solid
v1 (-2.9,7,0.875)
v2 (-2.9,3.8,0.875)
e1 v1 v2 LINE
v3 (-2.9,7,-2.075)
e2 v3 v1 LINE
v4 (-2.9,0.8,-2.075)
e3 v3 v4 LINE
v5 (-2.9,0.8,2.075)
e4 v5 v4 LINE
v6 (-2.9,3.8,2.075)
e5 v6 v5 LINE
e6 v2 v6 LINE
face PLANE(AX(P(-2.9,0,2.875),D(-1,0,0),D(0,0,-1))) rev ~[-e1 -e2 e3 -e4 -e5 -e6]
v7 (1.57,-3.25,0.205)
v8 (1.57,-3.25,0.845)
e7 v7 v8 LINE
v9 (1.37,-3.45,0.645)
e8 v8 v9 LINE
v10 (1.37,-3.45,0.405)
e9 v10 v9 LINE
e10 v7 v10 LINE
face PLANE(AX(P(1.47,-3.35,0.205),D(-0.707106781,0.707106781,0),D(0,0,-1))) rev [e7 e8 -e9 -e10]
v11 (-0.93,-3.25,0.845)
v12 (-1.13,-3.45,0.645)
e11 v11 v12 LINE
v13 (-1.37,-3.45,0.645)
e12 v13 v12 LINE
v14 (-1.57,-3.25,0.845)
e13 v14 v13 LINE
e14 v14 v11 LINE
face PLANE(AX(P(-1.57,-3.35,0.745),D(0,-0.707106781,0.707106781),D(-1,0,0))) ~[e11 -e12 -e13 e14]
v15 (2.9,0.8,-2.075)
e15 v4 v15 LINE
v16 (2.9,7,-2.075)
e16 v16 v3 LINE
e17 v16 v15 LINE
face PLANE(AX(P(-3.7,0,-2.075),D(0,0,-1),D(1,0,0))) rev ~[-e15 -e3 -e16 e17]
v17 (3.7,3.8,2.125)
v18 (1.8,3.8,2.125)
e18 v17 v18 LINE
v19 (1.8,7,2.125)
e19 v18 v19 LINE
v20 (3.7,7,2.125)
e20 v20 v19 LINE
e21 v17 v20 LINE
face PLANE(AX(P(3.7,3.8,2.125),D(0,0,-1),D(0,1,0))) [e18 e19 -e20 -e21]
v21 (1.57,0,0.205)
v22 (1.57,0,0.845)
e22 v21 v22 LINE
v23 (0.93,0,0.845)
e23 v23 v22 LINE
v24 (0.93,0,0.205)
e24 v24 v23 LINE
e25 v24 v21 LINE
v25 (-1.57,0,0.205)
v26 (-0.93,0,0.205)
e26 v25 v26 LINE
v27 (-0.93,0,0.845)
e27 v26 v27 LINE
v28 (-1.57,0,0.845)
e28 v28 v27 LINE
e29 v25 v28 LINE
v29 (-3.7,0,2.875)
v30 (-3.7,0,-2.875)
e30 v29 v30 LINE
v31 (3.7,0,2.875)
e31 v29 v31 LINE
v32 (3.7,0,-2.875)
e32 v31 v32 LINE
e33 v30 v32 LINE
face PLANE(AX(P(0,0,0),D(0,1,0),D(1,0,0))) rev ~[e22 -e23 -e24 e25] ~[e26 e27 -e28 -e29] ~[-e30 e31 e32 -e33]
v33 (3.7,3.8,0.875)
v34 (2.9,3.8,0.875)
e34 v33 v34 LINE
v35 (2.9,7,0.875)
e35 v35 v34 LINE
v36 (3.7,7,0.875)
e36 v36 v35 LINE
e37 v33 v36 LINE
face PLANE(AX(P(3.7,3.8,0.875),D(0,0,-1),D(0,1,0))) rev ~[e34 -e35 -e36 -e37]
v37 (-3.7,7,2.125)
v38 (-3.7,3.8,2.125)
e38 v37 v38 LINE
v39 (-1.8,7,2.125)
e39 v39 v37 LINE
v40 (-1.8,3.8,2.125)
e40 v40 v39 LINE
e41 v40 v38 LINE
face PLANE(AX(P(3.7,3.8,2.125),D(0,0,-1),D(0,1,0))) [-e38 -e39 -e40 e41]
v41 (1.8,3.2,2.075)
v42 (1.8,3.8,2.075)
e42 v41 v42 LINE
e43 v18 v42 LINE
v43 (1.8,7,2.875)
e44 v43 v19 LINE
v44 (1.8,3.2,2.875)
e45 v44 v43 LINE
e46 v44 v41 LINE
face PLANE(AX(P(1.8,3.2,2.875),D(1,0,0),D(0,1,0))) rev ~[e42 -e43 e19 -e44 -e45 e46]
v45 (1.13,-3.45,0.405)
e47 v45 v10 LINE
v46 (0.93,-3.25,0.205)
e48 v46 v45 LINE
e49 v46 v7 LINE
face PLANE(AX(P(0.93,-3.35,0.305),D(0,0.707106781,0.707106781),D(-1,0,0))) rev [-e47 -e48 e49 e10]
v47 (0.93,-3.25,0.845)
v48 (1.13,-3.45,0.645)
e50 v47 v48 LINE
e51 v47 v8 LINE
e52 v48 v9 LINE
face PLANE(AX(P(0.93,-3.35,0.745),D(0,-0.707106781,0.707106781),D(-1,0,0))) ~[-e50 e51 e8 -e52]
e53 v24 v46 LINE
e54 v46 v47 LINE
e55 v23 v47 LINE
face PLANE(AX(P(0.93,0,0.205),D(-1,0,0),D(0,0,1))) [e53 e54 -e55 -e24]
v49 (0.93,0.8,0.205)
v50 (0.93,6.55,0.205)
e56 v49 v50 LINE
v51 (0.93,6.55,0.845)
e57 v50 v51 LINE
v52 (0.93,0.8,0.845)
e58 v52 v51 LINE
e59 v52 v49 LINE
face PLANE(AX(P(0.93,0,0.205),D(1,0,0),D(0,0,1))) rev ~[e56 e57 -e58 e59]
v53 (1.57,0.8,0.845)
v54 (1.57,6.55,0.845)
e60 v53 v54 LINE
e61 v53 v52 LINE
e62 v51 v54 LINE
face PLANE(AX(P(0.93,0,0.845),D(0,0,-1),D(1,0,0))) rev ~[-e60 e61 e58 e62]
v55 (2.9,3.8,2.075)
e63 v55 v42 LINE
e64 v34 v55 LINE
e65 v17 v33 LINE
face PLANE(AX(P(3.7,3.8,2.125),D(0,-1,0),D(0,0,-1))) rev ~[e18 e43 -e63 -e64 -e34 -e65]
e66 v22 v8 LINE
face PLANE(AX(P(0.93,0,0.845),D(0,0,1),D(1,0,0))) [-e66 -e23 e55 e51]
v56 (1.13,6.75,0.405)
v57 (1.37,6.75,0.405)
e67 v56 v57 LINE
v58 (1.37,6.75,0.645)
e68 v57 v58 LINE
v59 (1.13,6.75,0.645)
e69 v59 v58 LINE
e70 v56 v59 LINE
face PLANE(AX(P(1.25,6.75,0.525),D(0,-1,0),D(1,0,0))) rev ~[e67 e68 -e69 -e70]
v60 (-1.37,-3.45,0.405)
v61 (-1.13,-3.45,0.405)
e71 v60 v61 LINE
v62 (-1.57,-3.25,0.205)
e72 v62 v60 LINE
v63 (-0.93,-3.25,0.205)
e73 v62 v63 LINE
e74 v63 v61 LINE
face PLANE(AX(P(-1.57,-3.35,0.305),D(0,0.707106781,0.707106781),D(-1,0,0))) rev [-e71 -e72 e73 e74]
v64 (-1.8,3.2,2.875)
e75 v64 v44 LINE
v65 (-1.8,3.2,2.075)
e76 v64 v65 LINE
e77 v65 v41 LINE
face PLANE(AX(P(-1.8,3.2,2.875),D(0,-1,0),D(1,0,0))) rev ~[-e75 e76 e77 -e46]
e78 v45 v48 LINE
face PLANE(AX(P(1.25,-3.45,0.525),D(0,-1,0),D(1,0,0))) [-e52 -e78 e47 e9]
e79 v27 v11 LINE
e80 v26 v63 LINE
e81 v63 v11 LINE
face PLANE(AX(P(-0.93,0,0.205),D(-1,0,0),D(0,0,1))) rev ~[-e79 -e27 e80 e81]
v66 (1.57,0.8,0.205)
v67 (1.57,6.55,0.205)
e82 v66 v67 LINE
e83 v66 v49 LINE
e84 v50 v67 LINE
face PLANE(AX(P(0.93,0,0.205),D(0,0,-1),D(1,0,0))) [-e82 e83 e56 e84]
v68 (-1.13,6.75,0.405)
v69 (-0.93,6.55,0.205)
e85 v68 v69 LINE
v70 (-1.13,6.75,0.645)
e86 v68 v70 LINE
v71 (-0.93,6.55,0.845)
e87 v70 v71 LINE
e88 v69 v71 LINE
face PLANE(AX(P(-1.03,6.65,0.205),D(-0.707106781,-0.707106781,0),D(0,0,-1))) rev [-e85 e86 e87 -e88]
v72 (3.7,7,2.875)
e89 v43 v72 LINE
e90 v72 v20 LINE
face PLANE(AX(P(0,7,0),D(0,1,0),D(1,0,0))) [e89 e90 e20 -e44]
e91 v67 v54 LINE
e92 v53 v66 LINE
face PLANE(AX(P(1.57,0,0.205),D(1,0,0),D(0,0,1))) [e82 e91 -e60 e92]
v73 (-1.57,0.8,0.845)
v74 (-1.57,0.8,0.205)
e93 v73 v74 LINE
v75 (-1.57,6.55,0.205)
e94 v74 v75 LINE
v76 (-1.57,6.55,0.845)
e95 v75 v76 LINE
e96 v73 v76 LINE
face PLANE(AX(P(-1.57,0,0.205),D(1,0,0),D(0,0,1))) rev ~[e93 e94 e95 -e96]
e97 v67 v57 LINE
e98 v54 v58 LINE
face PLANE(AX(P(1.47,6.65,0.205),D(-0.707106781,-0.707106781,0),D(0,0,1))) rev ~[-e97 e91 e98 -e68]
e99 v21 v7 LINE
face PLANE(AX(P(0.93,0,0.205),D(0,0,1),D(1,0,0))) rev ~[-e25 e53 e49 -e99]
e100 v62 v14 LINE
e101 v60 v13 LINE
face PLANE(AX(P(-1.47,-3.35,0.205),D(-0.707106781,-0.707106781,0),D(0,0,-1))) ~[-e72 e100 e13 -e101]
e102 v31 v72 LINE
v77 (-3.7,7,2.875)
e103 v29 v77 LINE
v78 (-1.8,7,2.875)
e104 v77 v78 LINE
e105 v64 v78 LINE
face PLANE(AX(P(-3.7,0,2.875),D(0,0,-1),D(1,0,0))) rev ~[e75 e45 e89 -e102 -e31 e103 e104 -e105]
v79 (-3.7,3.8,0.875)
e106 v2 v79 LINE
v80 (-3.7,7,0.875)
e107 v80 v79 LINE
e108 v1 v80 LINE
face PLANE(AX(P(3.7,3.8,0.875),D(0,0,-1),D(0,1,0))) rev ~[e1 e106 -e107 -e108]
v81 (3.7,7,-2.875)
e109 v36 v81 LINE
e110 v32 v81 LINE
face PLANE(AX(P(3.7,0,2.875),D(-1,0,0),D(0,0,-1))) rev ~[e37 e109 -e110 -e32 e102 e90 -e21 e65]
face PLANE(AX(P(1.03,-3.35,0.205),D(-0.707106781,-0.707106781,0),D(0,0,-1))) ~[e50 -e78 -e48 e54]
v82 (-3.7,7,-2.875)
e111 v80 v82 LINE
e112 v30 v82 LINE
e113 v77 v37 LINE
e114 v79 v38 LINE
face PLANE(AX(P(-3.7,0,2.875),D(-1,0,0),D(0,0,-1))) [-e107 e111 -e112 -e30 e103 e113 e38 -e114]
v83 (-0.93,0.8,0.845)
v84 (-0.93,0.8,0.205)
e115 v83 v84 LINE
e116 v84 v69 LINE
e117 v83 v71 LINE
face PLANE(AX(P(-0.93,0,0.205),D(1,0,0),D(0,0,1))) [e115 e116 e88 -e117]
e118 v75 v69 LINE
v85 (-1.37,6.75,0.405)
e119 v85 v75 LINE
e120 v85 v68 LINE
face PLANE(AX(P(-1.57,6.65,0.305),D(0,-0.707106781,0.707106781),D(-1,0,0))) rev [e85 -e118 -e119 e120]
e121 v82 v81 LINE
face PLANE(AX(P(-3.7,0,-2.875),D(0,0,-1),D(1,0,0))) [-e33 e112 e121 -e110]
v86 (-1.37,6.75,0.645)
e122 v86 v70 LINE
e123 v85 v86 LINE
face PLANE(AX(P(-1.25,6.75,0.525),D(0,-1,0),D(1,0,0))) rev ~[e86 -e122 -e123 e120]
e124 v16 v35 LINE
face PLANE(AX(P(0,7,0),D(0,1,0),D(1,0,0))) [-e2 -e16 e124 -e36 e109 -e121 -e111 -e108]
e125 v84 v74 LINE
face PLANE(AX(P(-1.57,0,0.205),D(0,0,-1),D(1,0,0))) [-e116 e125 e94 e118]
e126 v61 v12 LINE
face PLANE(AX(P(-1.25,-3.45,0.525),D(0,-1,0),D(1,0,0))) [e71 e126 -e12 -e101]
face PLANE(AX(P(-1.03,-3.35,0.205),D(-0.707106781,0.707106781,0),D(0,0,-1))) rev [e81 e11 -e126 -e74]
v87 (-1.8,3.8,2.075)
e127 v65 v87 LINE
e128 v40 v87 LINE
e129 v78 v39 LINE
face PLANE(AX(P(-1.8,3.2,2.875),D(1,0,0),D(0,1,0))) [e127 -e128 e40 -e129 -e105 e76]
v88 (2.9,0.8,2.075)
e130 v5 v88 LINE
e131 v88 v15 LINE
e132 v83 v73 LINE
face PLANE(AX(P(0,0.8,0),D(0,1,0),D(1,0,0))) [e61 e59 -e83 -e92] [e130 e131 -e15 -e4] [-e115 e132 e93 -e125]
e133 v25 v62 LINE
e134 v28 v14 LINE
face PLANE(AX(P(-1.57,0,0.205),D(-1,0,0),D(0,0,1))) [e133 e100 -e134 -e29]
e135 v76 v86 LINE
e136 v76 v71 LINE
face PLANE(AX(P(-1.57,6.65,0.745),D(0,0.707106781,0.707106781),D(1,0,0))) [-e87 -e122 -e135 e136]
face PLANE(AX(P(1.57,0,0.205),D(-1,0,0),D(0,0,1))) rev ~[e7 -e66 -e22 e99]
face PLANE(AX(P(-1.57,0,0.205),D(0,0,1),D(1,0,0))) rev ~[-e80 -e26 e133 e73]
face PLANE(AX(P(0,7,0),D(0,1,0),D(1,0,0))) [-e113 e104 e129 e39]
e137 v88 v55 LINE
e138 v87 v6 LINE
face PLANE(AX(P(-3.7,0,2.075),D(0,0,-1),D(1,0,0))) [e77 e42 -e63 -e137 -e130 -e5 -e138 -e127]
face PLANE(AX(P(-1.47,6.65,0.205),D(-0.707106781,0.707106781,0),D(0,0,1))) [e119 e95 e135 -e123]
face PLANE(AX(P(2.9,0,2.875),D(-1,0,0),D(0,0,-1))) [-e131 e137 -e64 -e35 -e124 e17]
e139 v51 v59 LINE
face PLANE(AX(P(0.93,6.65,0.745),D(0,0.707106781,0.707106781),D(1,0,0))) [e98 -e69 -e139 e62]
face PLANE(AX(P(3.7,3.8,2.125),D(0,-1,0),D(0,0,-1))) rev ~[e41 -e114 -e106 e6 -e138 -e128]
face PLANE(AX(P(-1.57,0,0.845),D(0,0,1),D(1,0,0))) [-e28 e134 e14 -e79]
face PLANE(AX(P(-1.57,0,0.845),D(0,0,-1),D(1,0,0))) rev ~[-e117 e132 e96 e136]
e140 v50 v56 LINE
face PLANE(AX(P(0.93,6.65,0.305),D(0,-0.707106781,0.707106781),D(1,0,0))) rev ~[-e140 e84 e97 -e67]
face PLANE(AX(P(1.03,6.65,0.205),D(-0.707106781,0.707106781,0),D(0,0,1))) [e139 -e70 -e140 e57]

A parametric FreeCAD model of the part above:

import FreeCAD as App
import Part
import Sketcher
Q = App.Units.Quantity


def edges_at(feature, points):
    """Names of the edges that pass closest to the given points."""
    edges = feature.Shape.Edges
    near = lambda p: min(range(len(edges)), key=lambda i: edges[i].distToShape(Part.Vertex(*p))[0])
    return sorted({f"Edge{near(p) + 1}" for p in points})


def faces_at(feature, points):
    """Names of the faces that lie closest to the given points."""
    faces = feature.Shape.Faces
    near = lambda p: min(range(len(faces)), key=lambda i: faces[i].distToShape(Part.Vertex(*p))[0])
    return sorted({f"Face{near(p) + 1}" for p in points})

doc = App.newDocument("Part")
body = doc.addObject("PartDesign::Body", "Body")

sketch1 = body.newObject("Sketcher::SketchObject", "Sketch")
sketch1.AttachmentSupport = (doc.getObject("XZ_Plane"), [""])
sketch1.MapMode = "FlatFace"
sketch1.addGeometry([
    Part.LineSegment(App.Vector(-4, -3, 0), App.Vector(-4, 3, 0)),
    Part.LineSegment(App.Vector(-4, 3, 0), App.Vector(4, 3, 0)),
    Part.LineSegment(App.Vector(4, 3, 0), App.Vector(4, -3, 0)),
    Part.LineSegment(App.Vector(4, -3, 0), App.Vector(-4, -3, 0)),
], False)
sketch1.addConstraint([
    Sketcher.Constraint("Coincident", 0, 2, 1, 1),
    Sketcher.Constraint("Coincident", 1, 2, 2, 1),
    Sketcher.Constraint("Coincident", 2, 2, 3, 1),
    Sketcher.Constraint("Coincident", 3, 2, 0, 1),
    Sketcher.Constraint("Vertical", 0),
    Sketcher.Constraint("Horizontal", 1),
    Sketcher.Constraint("Vertical", 2),
    Sketcher.Constraint("Horizontal", 3),
    Sketcher.Constraint("Symmetric", 0, 2, 2, 2, -1, 1),
    Sketcher.Constraint("DistanceX", 1, 1, 1, 2, Q("7.4 mm")),
    Sketcher.Constraint("DistanceY", 0, 1, 0, 2, Q("5.75 mm")),
])
pad1 = body.newObject("PartDesign::Pad", "Pad")
pad1.Profile = sketch1
pad1.Length = 7
pad1.Reversed = True
doc.recompute()

thickness = body.newObject("PartDesign::Thickness", "Thickness")
thickness.Base = (pad1, faces_at(pad1, [(0, 7, 0)]))
thickness.Value = 0.8
thickness.Reversed = True
thickness.Join = "Intersection"

sketch2 = body.newObject("Sketcher::SketchObject", "Sketch001")
sketch2.AttachmentSupport = (doc.getObject("YZ_Plane"), [""])
sketch2.MapMode = "FlatFace"
sketch2.AttachmentOffset = App.Placement(App.Vector(0, 0, 3.7), App.Rotation())
sketch2.addGeometry([
    Part.LineSegment(App.Vector(7, 2.1, 0), App.Vector(3.8, 2.1, 0)),
    Part.LineSegment(App.Vector(3.8, 2.1, 0), App.Vector(3.8, 0.9, 0)),
    Part.LineSegment(App.Vector(3.8, 0.9, 0), App.Vector(7, 0.9, 0)),
    Part.LineSegment(App.Vector(7, 0.9, 0), App.Vector(7, 2.1, 0)),
], False)
sketch2.addConstraint([
    Sketcher.Constraint("Coincident", 0, 2, 1, 1),
    Sketcher.Constraint("Coincident", 1, 2, 2, 1),
    Sketcher.Constraint("Coincident", 2, 2, 3, 1),
    Sketcher.Constraint("Coincident", 3, 2, 0, 1),
    Sketcher.Constraint("Horizontal", 0),
    Sketcher.Constraint("Vertical", 1),
    Sketcher.Constraint("Horizontal", 2),
    Sketcher.Constraint("Vertical", 3),
    Sketcher.Constraint("DistanceX", 0, 2, 0, 1, Q("3.2 mm")),
    Sketcher.Constraint("DistanceX", -1, 1, 2, 2, Q("7 mm")),
    Sketcher.Constraint("DistanceY", 1, 2, 1, 1, Q("1.25 mm")),
    Sketcher.Constraint("DistanceY", -1, 1, 0, 2, Q("2.125 mm")),
])
pocket1 = body.newObject("PartDesign::Pocket", "Pocket")
pocket1.Profile = sketch2
pocket1.Type = "ThroughAll"

sketch3 = body.newObject("Sketcher::SketchObject", "Sketch002")
sketch3.AttachmentSupport = (doc.getObject("XY_Plane"), [""])
sketch3.MapMode = "FlatFace"
sketch3.AttachmentOffset = App.Placement(App.Vector(0, 0, 2.875), App.Rotation())
sketch3.addGeometry([
    Part.LineSegment(App.Vector(-1.8, 7, 0), App.Vector(-1.8, 3.2, 0)),
    Part.LineSegment(App.Vector(-1.8, 3.2, 0), App.Vector(1.8, 3.2, 0)),
    Part.LineSegment(App.Vector(1.8, 3.2, 0), App.Vector(1.8, 7, 0)),
    Part.LineSegment(App.Vector(1.8, 7, 0), App.Vector(-1.8, 7, 0)),
], False)
sketch3.addConstraint([
    Sketcher.Constraint("Coincident", 0, 2, 1, 1),
    Sketcher.Constraint("Coincident", 1, 2, 2, 1),
    Sketcher.Constraint("Coincident", 2, 2, 3, 1),
    Sketcher.Constraint("Coincident", 3, 2, 0, 1),
    Sketcher.Constraint("Vertical", 0),
    Sketcher.Constraint("Horizontal", 1),
    Sketcher.Constraint("Vertical", 2),
    Sketcher.Constraint("Horizontal", 3),
    Sketcher.Constraint("DistanceX", 1, 1, 1, 2, Q("3.6 mm")),
    Sketcher.Constraint("DistanceY", 0, 2, 0, 1, Q("3.8 mm")),
    Sketcher.Constraint("DistanceY", -1, 1, 2, 2, Q("7 mm")),
    Sketcher.Constraint("DistanceX", 0, 2, -1, 1, Q("1.8 mm")),
])
pocket2 = body.newObject("PartDesign::Pocket", "Pocket001")
pocket2.Profile = sketch3
pocket2.Length = 0.8

sketch4 = body.newObject("Sketcher::SketchObject", "Sketch003")
sketch4.AttachmentSupport = (doc.getObject("XZ_Plane"), [""])
sketch4.MapMode = "FlatFace"
sketch4.addGeometry([
    Part.LineSegment(App.Vector(-1.6, 0.8, 0), App.Vector(-1.6, 0.2, 0)),
    Part.LineSegment(App.Vector(-1.6, 0.2, 0), App.Vector(-0.9, 0.2, 0)),
    Part.LineSegment(App.Vector(-0.9, 0.2, 0), App.Vector(-0.9, 0.8, 0)),
    Part.LineSegment(App.Vector(-0.9, 0.8, 0), App.Vector(-1.6, 0.8, 0)),
    Part.LineSegment(App.Vector(0.9, 0.8, 0), App.Vector(0.9, 0.2, 0)),
    Part.LineSegment(App.Vector(0.9, 0.2, 0), App.Vector(1.6, 0.2, 0)),
    Part.LineSegment(App.Vector(1.6, 0.2, 0), App.Vector(1.6, 0.8, 0)),
    Part.LineSegment(App.Vector(1.6, 0.8, 0), App.Vector(0.9, 0.8, 0)),
], False)
sketch4.addConstraint([
    Sketcher.Constraint("Coincident", 0, 2, 1, 1),
    Sketcher.Constraint("Coincident", 1, 2, 2, 1),
    Sketcher.Constraint("Coincident", 2, 2, 3, 1),
    Sketcher.Constraint("Coincident", 3, 2, 0, 1),
    Sketcher.Constraint("Coincident", 4, 2, 5, 1),
    Sketcher.Constraint("Coincident", 5, 2, 6, 1),
    Sketcher.Constraint("Coincident", 6, 2, 7, 1),
    Sketcher.Constraint("Coincident", 7, 2, 4, 1),
    Sketcher.Constraint("Vertical", 0),
    Sketcher.Constraint("Horizontal", 1),
    Sketcher.Constraint("Vertical", 2),
    Sketcher.Constraint("Horizontal", 3),
    Sketcher.Constraint("Vertical", 4),
    Sketcher.Constraint("Horizontal", 5),
    Sketcher.Constraint("Vertical", 6),
    Sketcher.Constraint("Horizontal", 7),
    Sketcher.Constraint("Symmetric", 1, 2, 4, 2, -2),
    Sketcher.Constraint("Symmetric", 3, 2, 6, 2, -2),
    Sketcher.Constraint("Equal", 7, 0),
    Sketcher.Constraint("DistanceX", 1, 1, 1, 2, Q("0.64 mm")),
    Sketcher.Constraint("DistanceX", 0, 2, 4, 2, Q("2.5 mm")),
    Sketcher.Constraint("DistanceY", -1, 1, 0, 2, Q("0.205 mm")),
])
pad2 = body.newObject("PartDesign::Pad", "Pad001")
pad2.Profile = sketch4
pad2.Type = "TwoLengths"
pad2.Length = 3.45
pad2.Length2 = 6.75
doc.recompute()

chamfer = body.newObject("PartDesign::Chamfer", "Chamfer")
chamfer.Base = (pad2, edges_at(pad2, [
    (-0.93, 6.75, 0.525),
    (-1.25, 6.75, 0.205),
    (-1.57, 6.75, 0.525),
    (-1.25, 6.75, 0.845),
    (-0.93, -3.45, 0.525),
    (-1.25, -3.45, 0.845),
    (-1.57, -3.45, 0.525),
    (-1.25, -3.45, 0.205),
    (1.25, 6.75, 0.845),
    (1.57, 6.75, 0.525),
    (1.25, 6.75, 0.205),
    (0.93, 6.75, 0.525),
    (1.25, -3.45, 0.845),
    (0.93, -3.45, 0.525),
    (1.25, -3.45, 0.205),
    (1.57, -3.45, 0.525),
]))
chamfer.Size = 0.2

doc.recompute()
